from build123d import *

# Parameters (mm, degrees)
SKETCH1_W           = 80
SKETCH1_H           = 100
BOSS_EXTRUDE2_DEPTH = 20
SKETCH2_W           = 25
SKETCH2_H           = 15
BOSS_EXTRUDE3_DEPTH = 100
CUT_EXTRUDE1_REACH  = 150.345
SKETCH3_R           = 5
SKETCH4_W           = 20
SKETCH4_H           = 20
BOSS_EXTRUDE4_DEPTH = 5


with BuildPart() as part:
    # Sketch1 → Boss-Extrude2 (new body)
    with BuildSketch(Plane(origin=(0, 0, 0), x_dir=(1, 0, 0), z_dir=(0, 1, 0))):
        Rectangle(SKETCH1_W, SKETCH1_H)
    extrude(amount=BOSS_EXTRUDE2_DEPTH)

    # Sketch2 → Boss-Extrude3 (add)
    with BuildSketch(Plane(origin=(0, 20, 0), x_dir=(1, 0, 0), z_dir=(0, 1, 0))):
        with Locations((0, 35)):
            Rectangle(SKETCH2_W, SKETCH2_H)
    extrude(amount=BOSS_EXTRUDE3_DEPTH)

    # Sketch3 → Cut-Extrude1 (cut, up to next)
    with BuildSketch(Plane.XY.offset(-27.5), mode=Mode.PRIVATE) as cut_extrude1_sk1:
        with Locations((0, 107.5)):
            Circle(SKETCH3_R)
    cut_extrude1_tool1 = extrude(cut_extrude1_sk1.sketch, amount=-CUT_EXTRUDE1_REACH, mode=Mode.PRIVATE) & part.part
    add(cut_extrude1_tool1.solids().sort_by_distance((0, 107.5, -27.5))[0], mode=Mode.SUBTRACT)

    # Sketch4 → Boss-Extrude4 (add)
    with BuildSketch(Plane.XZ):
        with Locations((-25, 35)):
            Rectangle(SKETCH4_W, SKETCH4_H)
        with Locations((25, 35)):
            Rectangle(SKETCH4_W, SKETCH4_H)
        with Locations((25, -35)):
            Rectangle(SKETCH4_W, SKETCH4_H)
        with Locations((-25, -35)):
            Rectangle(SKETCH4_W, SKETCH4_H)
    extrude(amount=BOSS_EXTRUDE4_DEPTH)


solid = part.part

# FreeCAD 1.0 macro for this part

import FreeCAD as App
import Part
import Sketcher

V = App.Vector


def add_polygon(sketch, points):
    """Adds a closed chain of lines whose ends are joined by coincident constraints."""
    first, n = sketch.GeometryCount, len(points)
    for a, b in zip(points, points[1:] + points[:1]):
        sketch.addGeometry(Part.LineSegment(App.Vector(*a, 0), App.Vector(*b, 0)), False)
    for i in range(n):
        sketch.addConstraint(Sketcher.Constraint("Coincident", first + i, 2, first + (i + 1) % n, 1))

doc = App.newDocument("Part")
body = doc.addObject("PartDesign::Body", "Body")

sketch1 = doc.addObject("Sketcher::SketchObject", "Sketch")
body.addObject(sketch1)
sketch1.AttachmentSupport = (doc.XZ_Plane, [""])
sketch1.MapMode = "FlatFace"
add_polygon(sketch1, [(-40, -50), (-40, 50), (40, 50), (40, -50)])
sketch1.addConstraint([
    Sketcher.Constraint("Vertical", 0),
    Sketcher.Constraint("Horizontal", 1),
    Sketcher.Constraint("Vertical", 2),
    Sketcher.Constraint("Horizontal", 3),
    Sketcher.Constraint("Symmetric", 0, 2, 2, 2, -1, 1),
    Sketcher.Constraint("DistanceX", 1, 1, 1, 2, 80.0),
    Sketcher.Constraint("DistanceY", 0, 1, 0, 2, 100.0),
])
pad1 = doc.addObject("PartDesign::Pad", "Pad")
body.addObject(pad1)
pad1.Profile = sketch1
pad1.Length = 20
pad1.Reversed = True

sketch2 = doc.addObject("Sketcher::SketchObject", "Sketch001")
body.addObject(sketch2)
sketch2.AttachmentSupport = (doc.XZ_Plane, [""])
sketch2.MapMode = "FlatFace"
sketch2.AttachmentOffset = App.Placement(V(0, 0, -20), App.Rotation())
add_polygon(sketch2, [(-12, -42), (-12, -28), (12, -28), (12, -42)])
sketch2.addConstraint([
    Sketcher.Constraint("Vertical", 0),
    Sketcher.Constraint("Horizontal", 1),
    Sketcher.Constraint("Vertical", 2),
    Sketcher.Constraint("Horizontal", 3),
    Sketcher.Constraint("DistanceX", 1, 1, 1, 2, 25.0),
    Sketcher.Constraint("DistanceY", 0, 1, 0, 2, 15.0),
    Sketcher.Constraint("DistanceX", 0, 2, -1, 1, 12.5),
    Sketcher.Constraint("DistanceY", 0, 2, -1, 1, 27.5),
])
pad2 = doc.addObject("PartDesign::Pad", "Pad001")
body.addObject(pad2)
pad2.Profile = sketch2
pad2.Length = 100
pad2.Reversed = True

sketch3 = doc.addObject("Sketcher::SketchObject", "Sketch002")
body.addObject(sketch3)
sketch3.AttachmentSupport = (doc.XY_Plane, [""])
sketch3.MapMode = "FlatFace"
sketch3.AttachmentOffset = App.Placement(V(0, 0, -27.5), App.Rotation())
sketch3.addGeometry(Part.Circle(V(0, 108, 0), V(0, 0, 1), 5), False)
sketch3.addConstraint([
    Sketcher.Constraint("PointOnObject", 0, 3, -2),
    Sketcher.Constraint("Diameter", 0, 10.0),
    Sketcher.Constraint("DistanceY", -1, 1, 0, 3, 107.5),
])
pocket1 = doc.addObject("PartDesign::Pocket", "Pocket")
body.addObject(pocket1)
pocket1.Profile = sketch3
pocket1.Type = "UpToFirst"

sketch4 = doc.addObject("Sketcher::SketchObject", "Sketch003")
body.addObject(sketch4)
sketch4.AttachmentSupport = (doc.XZ_Plane, [""])
sketch4.MapMode = "FlatFace"
add_polygon(sketch4, [(-35, 45), (-35, 25), (-15, 25), (-15, 45)])
add_polygon(sketch4, [(15, 45), (15, 25), (35, 25), (35, 45)])
add_polygon(sketch4, [(15, -25), (15, -45), (35, -45), (35, -25)])
add_polygon(sketch4, [(-35, -25), (-35, -45), (-15, -45), (-15, -25)])
sketch4.addConstraint([
    Sketcher.Constraint("Vertical", 0),
    Sketcher.Constraint("Horizontal", 1),
    Sketcher.Constraint("Vertical", 2),
    Sketcher.Constraint("Horizontal", 3),
    Sketcher.Constraint("Vertical", 4),
    Sketcher.Constraint("Horizontal", 5),
    Sketcher.Constraint("Vertical", 6),
    Sketcher.Constraint("Horizontal", 7),
    Sketcher.Constraint("Vertical", 8),
    Sketcher.Constraint("Horizontal", 9),
    Sketcher.Constraint("Vertical", 10),
    Sketcher.Constraint("Horizontal", 11),
    Sketcher.Constraint("Vertical", 12),
    Sketcher.Constraint("Horizontal", 13),
    Sketcher.Constraint("Vertical", 14),
    Sketcher.Constraint("Horizontal", 15),
    Sketcher.Constraint("Symmetric", 2, 2, 8, 2, -1, 1),
    Sketcher.Constraint("Symmetric", 0, 2, 10, 2, -1, 1),
    Sketcher.Constraint("Symmetric", 6, 2, 12, 2, -1, 1),
    Sketcher.Constraint("Symmetric", 4, 2, 14, 2, -1, 1),
    Sketcher.Constraint("Symmetric", 1, 2, 4, 2, -2),
    Sketcher.Constraint("Symmetric", 3, 2, 6, 2, -2),
    Sketcher.Constraint("Equal", 15, 0),
    Sketcher.Constraint("DistanceX", 1, 1, 1, 2, 20.0),
    Sketcher.Constraint("DistanceX", 0, 2, -1, 1, 35.0),
    Sketcher.Constraint("DistanceY", -1, 1, 0, 2, 25.0),
])
pad3 = doc.addObject("PartDesign::Pad", "Pad002")
body.addObject(pad3)
pad3.Profile = sketch4
pad3.Length = 5

doc.recompute()
